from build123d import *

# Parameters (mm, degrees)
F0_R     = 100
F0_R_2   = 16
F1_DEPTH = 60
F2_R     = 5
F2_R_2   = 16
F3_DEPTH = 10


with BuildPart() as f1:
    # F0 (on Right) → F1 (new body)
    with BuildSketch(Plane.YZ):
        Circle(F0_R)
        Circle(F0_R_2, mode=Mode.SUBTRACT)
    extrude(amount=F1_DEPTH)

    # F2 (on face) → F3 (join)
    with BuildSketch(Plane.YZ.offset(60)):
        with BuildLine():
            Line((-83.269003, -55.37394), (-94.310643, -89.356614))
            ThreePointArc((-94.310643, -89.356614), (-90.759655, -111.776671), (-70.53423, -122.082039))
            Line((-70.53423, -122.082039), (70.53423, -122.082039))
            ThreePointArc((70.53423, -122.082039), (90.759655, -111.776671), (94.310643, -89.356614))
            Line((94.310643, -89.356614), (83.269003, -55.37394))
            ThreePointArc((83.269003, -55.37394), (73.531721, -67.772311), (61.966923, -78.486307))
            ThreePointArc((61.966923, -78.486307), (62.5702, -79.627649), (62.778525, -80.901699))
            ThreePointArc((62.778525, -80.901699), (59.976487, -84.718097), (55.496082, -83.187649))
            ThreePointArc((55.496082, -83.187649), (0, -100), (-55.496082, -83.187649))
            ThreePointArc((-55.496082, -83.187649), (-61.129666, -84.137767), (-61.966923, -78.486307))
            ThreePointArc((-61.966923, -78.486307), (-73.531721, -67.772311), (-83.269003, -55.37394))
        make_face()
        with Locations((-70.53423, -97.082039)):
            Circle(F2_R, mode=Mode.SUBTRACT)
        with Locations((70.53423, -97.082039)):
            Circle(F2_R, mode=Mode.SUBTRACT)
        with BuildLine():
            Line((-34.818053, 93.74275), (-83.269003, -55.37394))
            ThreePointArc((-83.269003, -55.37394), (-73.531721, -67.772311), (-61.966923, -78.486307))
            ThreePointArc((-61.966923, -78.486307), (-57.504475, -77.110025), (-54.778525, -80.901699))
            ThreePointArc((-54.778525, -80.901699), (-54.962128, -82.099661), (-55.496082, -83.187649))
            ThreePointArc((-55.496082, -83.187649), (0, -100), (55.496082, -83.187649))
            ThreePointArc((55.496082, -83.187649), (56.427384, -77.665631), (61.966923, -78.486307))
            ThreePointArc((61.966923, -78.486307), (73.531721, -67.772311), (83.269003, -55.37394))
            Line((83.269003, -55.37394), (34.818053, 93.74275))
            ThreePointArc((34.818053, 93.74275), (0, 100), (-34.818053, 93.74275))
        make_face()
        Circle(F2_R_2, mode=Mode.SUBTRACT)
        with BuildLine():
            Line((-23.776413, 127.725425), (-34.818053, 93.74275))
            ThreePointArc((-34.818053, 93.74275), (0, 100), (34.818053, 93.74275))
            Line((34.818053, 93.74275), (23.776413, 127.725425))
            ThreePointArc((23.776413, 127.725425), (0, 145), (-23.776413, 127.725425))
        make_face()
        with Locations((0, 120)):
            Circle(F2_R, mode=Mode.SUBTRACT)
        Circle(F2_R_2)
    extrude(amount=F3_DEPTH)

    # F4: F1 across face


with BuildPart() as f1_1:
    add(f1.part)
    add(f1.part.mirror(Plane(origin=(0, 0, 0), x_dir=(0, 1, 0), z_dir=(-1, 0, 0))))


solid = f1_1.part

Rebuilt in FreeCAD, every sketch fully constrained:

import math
import FreeCAD as App
import Part
import Sketcher

V = App.Vector
Q = App.Units.Quantity

doc = App.newDocument("Part")
body = doc.addObject("PartDesign::Body", "Body")

# Sketch on YZ plane
sketch1 = doc.addObject("Sketcher::SketchObject", "Sketch")
body.addObject(sketch1)
sketch1.AttachmentSupport = (doc.YZ_Plane, [""])
sketch1.MapMode = "FlatFace"
sketch1.addGeometry(Part.Circle(V(0, 0, 0), V(0, 0, 1), 100), False)
sketch1.addGeometry(Part.Circle(V(0, 0, 0), V(0, 0, 1), 16), False)
sketch1.addConstraint(Sketcher.Constraint("Coincident", 0, 3, -1, 1))
sketch1.addConstraint(Sketcher.Constraint("Coincident", 1, 3, -1, 1))
sketch1.addConstraint(Sketcher.Constraint("Diameter", 0, Q("200 mm")))
sketch1.addConstraint(Sketcher.Constraint("Diameter", 1, Q("32 mm")))
pad1 = doc.addObject("PartDesign::Pad", "Pad")
body.addObject(pad1)
pad1.Profile = sketch1
pad1.Length = 60

# Sketch on YZ plane
sketch2 = doc.addObject("Sketcher::SketchObject", "Sketch001")
body.addObject(sketch2)
sketch2.AttachmentSupport = (doc.YZ_Plane, [""])
sketch2.MapMode = "FlatFace"
sketch2.AttachmentOffset = App.Placement(V(0, 0, 60), App.Rotation())
sketch2.addGeometry(Part.LineSegment(V(-83.3, -55.4, 0), V(-94.3, -89.4, 0)), False)
sketch2.addGeometry(Part.ArcOfCircle(Part.Circle(V(-70.5, -97.1, 0), V(0, 0, 1), 25), math.radians(162), math.radians(270)), False)
sketch2.addGeometry(Part.LineSegment(V(-70.5, -122.1, 0), V(70.5, -122.1, 0)), False)
sketch2.addGeometry(Part.ArcOfCircle(Part.Circle(V(70.5, -97.1, 0), V(0, 0, 1), 25), math.radians(-90), math.radians(18)), False)
sketch2.addGeometry(Part.LineSegment(V(94.3, -89.4, 0), V(83.3, -55.4, 0)), False)
sketch2.addGeometry(Part.LineSegment(V(83.3, -55.4, 0), V(34.8, 93.7, 0)), False)
sketch2.addGeometry(Part.LineSegment(V(34.8, 93.7, 0), V(23.8, 127.7, 0)), False)
sketch2.addGeometry(Part.ArcOfCircle(Part.Circle(V(0, 120, 0), V(0, 0, 1), 25), math.radians(18), math.radians(162)), False)
sketch2.addGeometry(Part.LineSegment(V(-23.8, 127.7, 0), V(-34.8, 93.7, 0)), False)
sketch2.addGeometry(Part.LineSegment(V(-34.8, 93.7, 0), V(-83.3, -55.4, 0)), False)
sketch2.addGeometry(Part.Circle(V(-70.5, -97.1, 0), V(0, 0, 1), 5), False)
sketch2.addGeometry(Part.ArcOfCircle(Part.Circle(V(-58.8, -80.9, 0), V(0, 0, 1), 4), math.radians(143), math.radians(325)), False)
sketch2.addGeometry(Part.ArcOfCircle(Part.Circle(V(-58.8, -80.9, 0), V(0, 0, 1), 4), math.radians(0), math.radians(143)), False)
sketch2.addGeometry(Part.ArcOfCircle(Part.Circle(V(-58.8, -80.9, 0), V(0, 0, 1), 4), math.radians(-35), math.radians(0)), False)
sketch2.addGeometry(Part.Circle(V(70.5, -97.1, 0), V(0, 0, 1), 5), False)
sketch2.addGeometry(Part.ArcOfCircle(Part.Circle(V(58.8, -80.9, 0), V(0, 0, 1), 4), math.radians(-145), math.radians(0)), False)
sketch2.addGeometry(Part.ArcOfCircle(Part.Circle(V(58.8, -80.9, 0), V(0, 0, 1), 4), math.radians(37), math.radians(215)), False)
sketch2.addGeometry(Part.ArcOfCircle(Part.Circle(V(58.8, -80.9, 0), V(0, 0, 1), 4), math.radians(0), math.radians(37)), False)
sketch2.addGeometry(Part.Circle(V(0, 120, 0), V(0, 0, 1), 5), False)
sketch2.addConstraint(Sketcher.Constraint("Tangent", 0, 2, 1, 1))
sketch2.addConstraint(Sketcher.Constraint("Tangent", 1, 2, 2, 1))
sketch2.addConstraint(Sketcher.Constraint("Tangent", 2, 2, 3, 1))
sketch2.addConstraint(Sketcher.Constraint("Tangent", 3, 2, 4, 1))
sketch2.addConstraint(Sketcher.Constraint("Coincident", 4, 2, 5, 1))
sketch2.addConstraint(Sketcher.Constraint("Coincident", 5, 2, 6, 1))
sketch2.addConstraint(Sketcher.Constraint("Tangent", 6, 2, 7, 1))
sketch2.addConstraint(Sketcher.Constraint("Tangent", 7, 2, 8, 1))
sketch2.addConstraint(Sketcher.Constraint("Coincident", 8, 2, 9, 1))
sketch2.addConstraint(Sketcher.Constraint("Coincident", 9, 2, 0, 1))
sketch2.addConstraint(Sketcher.Constraint("Tangent", 11, 1, 12, 2))
sketch2.addConstraint(Sketcher.Constraint("Tangent", 12, 1, 13, 2))
sketch2.addConstraint(Sketcher.Constraint("Tangent", 13, 1, 11, 2))
sketch2.addConstraint(Sketcher.Constraint("Tangent", 15, 1, 16, 2))
sketch2.addConstraint(Sketcher.Constraint("Tangent", 16, 1, 17, 2))
sketch2.addConstraint(Sketcher.Constraint("Tangent", 17, 1, 15, 2))
sketch2.addConstraint(Sketcher.Constraint("Horizontal", 2))
sketch2.addConstraint(Sketcher.Constraint("Coincident", 10, 3, 1, 3))
sketch2.addConstraint(Sketcher.Constraint("Coincident", 14, 3, 3, 3))
sketch2.addConstraint(Sketcher.Constraint("Coincident", 18, 3, 7, 3))
sketch2.addConstraint(Sketcher.Constraint("Equal", 1, 3))
sketch2.addConstraint(Sketcher.Constraint("Equal", 3, 7))
sketch2.addConstraint(Sketcher.Constraint("Equal", 10, 14))
sketch2.addConstraint(Sketcher.Constraint("Equal", 12, 15))
sketch2.addConstraint(Sketcher.Constraint("Equal", 14, 18))
sketch2.addConstraint(Sketcher.Constraint("Symmetric", 11, 3, 15, 3, -2))
sketch2.addConstraint(Sketcher.Constraint("Symmetric", 0, 2, 3, 2, -2))
sketch2.addConstraint(Sketcher.Constraint("Symmetric", 6, 2, 7, 2, -2))
sketch2.addConstraint(Sketcher.Constraint("Parallel", 4, 5))
sketch2.addConstraint(Sketcher.Constraint("Parallel", 5, 6))
sketch2.addConstraint(Sketcher.Constraint("Horizontal", 5, 2, 8, 2))
sketch2.addConstraint(Sketcher.Constraint("Horizontal", 4, 2, 9, 2))
sketch2.addConstraint(Sketcher.Constraint("Horizontal", 16, 3, 12, 1))
sketch2.addConstraint(Sketcher.Constraint("Horizontal", 13, 1, 15, 1))
sketch2.addConstraint(Sketcher.Constraint("Horizontal", 11, 1, 16, 1))
sketch2.addConstraint(Sketcher.Constraint("Horizontal", 12, 1, 17, 1))
sketch2.addConstraint(Sketcher.Constraint("Equal", 4, 6))
sketch2.addConstraint(Sketcher.Constraint("Diameter", 10, Q("10 mm")))
sketch2.addConstraint(Sketcher.Constraint("Radius", 1, Q("24.999999 mm")))
sketch2.addConstraint(Sketcher.Constraint("Radius", 11, Q("4 mm")))
sketch2.addConstraint(Sketcher.Constraint("Angle", 0, Q("-108 deg")))
sketch2.addConstraint(Sketcher.Constraint("DistanceY", -1, 1, 7, 3, Q("120 mm")))
sketch2.addConstraint(Sketcher.Constraint("Distance", 6, Q("35.731499 mm")))
sketch2.addConstraint(Sketcher.Constraint("DistanceX", 2, 1, 2, 2, Q("141.06846 mm")))
sketch2.addConstraint(Sketcher.Constraint("DistanceY", 11, 3, -1, 1, Q("80.901699 mm")))
sketch2.addConstraint(Sketcher.Constraint("DistanceX", 17, 3, 14, 3, Q("11.755699 mm")))
sketch2.addConstraint(Sketcher.Constraint("DistanceY", 13, 1, -1, 1, Q("83.187649 mm")))
sketch2.addConstraint(Sketcher.Constraint("DistanceY", 13, 3, 11, 1, Q("2.415391 mm")))
pad2 = doc.addObject("PartDesign::Pad", "Pad001")
body.addObject(pad2)
pad2.Profile = sketch2
pad2.Length = 10
body2 = doc.addObject("PartDesign::Body", "Body001")
doc.recompute()

body2.BaseFeature = body
doc.recompute()

mirroring = doc.addObject("Part::Mirroring", "Mirroring")
mirroring.Source = body
mirroring.Base = V(0, 0, 0)
mirroring.Normal = V(-1, 0, 0)
body3 = doc.addObject("PartDesign::Body", "Body002")
body3.BaseFeature = mirroring
boolean = doc.addObject("PartDesign::Boolean", "Boolean")
body2.addObject(boolean)
boolean.Type = "Fuse"
boolean.addObjects([body3])
doc.recompute()
mirroring.Visibility = False

doc.recompute()
